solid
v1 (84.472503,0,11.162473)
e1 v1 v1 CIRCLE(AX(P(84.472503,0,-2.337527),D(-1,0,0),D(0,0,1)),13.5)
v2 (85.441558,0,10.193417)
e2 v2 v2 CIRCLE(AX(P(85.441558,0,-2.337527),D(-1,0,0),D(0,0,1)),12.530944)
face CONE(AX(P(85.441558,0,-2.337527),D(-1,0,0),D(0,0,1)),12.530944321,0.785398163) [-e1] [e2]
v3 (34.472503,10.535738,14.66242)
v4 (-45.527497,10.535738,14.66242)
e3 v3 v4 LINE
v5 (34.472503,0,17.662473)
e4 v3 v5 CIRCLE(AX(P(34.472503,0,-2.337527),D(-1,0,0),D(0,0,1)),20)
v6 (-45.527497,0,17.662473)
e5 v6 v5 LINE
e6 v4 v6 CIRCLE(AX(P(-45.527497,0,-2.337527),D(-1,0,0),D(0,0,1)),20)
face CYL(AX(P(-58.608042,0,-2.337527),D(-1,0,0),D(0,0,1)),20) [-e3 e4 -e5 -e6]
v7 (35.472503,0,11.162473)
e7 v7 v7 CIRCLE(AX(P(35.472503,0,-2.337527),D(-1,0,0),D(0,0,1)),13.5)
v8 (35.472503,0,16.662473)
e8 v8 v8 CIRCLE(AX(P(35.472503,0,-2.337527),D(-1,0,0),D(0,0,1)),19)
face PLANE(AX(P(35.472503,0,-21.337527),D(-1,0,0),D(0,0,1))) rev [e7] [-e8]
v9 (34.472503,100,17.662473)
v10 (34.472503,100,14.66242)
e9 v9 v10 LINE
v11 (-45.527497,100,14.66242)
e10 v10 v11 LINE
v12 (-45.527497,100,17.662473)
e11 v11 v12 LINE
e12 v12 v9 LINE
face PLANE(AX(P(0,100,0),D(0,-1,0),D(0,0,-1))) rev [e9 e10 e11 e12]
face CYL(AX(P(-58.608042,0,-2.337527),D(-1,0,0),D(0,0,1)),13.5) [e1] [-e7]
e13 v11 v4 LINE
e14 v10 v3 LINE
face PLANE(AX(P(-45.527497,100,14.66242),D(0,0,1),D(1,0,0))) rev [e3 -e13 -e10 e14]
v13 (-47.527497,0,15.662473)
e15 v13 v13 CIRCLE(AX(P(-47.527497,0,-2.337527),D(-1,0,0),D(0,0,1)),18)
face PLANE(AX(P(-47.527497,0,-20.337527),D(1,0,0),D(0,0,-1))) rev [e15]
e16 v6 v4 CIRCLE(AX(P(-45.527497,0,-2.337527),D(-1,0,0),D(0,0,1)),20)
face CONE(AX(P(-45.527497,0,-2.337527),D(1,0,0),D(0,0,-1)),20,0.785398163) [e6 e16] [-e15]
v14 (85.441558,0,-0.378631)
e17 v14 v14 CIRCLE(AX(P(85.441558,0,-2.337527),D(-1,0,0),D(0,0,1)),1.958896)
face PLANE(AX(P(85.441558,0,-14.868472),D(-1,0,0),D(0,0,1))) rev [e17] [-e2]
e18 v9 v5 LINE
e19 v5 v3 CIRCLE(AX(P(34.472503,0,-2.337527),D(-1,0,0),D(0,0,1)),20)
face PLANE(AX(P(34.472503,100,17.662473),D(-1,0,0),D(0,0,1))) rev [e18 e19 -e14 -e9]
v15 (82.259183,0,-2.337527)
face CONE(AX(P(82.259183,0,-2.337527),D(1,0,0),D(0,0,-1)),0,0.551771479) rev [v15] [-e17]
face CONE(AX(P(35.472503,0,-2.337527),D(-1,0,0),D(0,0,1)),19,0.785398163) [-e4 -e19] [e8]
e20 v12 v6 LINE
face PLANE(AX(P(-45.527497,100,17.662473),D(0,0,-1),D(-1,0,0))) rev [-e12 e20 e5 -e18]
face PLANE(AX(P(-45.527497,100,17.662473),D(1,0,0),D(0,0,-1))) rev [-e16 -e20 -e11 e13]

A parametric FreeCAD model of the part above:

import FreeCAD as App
import Part
import Sketcher

V = App.Vector
Q = App.Units.Quantity

doc = App.newDocument("Part")
body = doc.addObject("PartDesign::Body", "Body")

# Sketch on XZ plane
sketch1 = body.newObject("Sketcher::SketchObject", "Sketch")
sketch1.AttachmentSupport = (doc.getObject("XZ_Plane"), [""])
sketch1.MapMode = "FlatFace"
sketch1.addGeometry([
    Part.LineSegment(V(34.5, -22.3, 0), V(-45.5, -22.3, 0)),  # 0
    Part.LineSegment(V(-45.5, -22.3, 0), V(-47.5, -20.3, 0)),  # 1
    Part.LineSegment(V(-47.5, -20.3, 0), V(-47.5, -2.3, 0)),  # 2
    Part.LineSegment(V(-47.5, -2.3, 0), V(82.3, -2.3, 0)),  # 3
    Part.LineSegment(V(82.3, -2.3, 0), V(85.4, -4.3, 0)),  # 4
    Part.LineSegment(V(85.4, -4.3, 0), V(85.4, -14.9, 0)),  # 5
    Part.LineSegment(V(85.4, -14.9, 0), V(84.5, -15.8, 0)),  # 6
    Part.LineSegment(V(84.5, -15.8, 0), V(35.5, -15.8, 0)),  # 7
    Part.LineSegment(V(35.5, -15.8, 0), V(35.5, -21.3, 0)),  # 8
    Part.LineSegment(V(35.5, -21.3, 0), V(34.5, -22.3, 0)),  # 9
], False)
sketch1.addGeometry(Part.LineSegment(V(-47.5, -2.3, 0), V(85.4, -2.3, 0)), True)  # axis
sketch1.addConstraint([
    Sketcher.Constraint("Coincident", 0, 2, 1, 1),
    Sketcher.Constraint("Coincident", 1, 2, 2, 1),
    Sketcher.Constraint("Coincident", 2, 2, 3, 1),
    Sketcher.Constraint("Coincident", 3, 2, 4, 1),
    Sketcher.Constraint("Coincident", 4, 2, 5, 1),
    Sketcher.Constraint("Coincident", 5, 2, 6, 1),
    Sketcher.Constraint("Coincident", 6, 2, 7, 1),
    Sketcher.Constraint("Coincident", 7, 2, 8, 1),
    Sketcher.Constraint("Coincident", 8, 2, 9, 1),
    Sketcher.Constraint("Coincident", 9, 2, 0, 1),
    Sketcher.Constraint("Horizontal", 0),
    Sketcher.Constraint("Vertical", 2),
    Sketcher.Constraint("Horizontal", 3),
    Sketcher.Constraint("Vertical", 5),
    Sketcher.Constraint("Horizontal", 7),
    Sketcher.Constraint("Vertical", 8),
    Sketcher.Constraint("Horizontal", 10),
    Sketcher.Constraint("Coincident", 10, 1, 2, 2),
    Sketcher.Constraint("Perpendicular", 1, 6),
    Sketcher.Constraint("Parallel", 6, 9),
    Sketcher.Constraint("Vertical", 5, 2, 10, 2),
    Sketcher.Constraint("DistanceX", 0, 2, 0, 1, 80.0),
    Sketcher.Constraint("DistanceX", 7, 2, 7, 1, 49.0),
    Sketcher.Constraint("DistanceY", 2, 1, 2, 2, 18.0),
    Sketcher.Constraint("Angle", 1, Q("135 deg")),
    Sketcher.Constraint("DistanceY", 8, 2, 8, 1, 5.5),
    Sketcher.Constraint("DistanceX", 1, 2, 0, 2, 2.0),
    Sketcher.Constraint("DistanceX", 0, 2, 6, 2, 130.0),
    Sketcher.Constraint("DistanceX", 3, 1, 3, 2, 129.78668),
    Sketcher.Constraint("DistanceY", 5, 2, 5, 1, 10.572048),
    Sketcher.Constraint("Distance", 4, 3.736949),
    Sketcher.Constraint("DistanceX", -1, 1, 4, 2, 85.441558),
    Sketcher.Constraint("DistanceY", 5, 2, -1, 1, 14.868472),
])
revolution = body.newObject("PartDesign::Revolution", "Revolution")
revolution.Profile = sketch1
revolution.ReferenceAxis = (sketch1, ["Axis0"])
revolution.Angle = 360

# Sketch on XZ plane
sketch2 = body.newObject("Sketcher::SketchObject", "Sketch001")
sketch2.AttachmentSupport = (doc.getObject("XZ_Plane"), [""])
sketch2.MapMode = "FlatFace"
sketch2.addGeometry([
    Part.LineSegment(V(-45.5, 14.7, 0), V(-45.5, 17.7, 0)),
    Part.LineSegment(V(-45.5, 17.7, 0), V(34.5, 17.7, 0)),
    Part.LineSegment(V(34.5, 17.7, 0), V(34.5, 14.7, 0)),
    Part.LineSegment(V(34.5, 14.7, 0), V(-45.5, 14.7, 0)),
], False)
sketch2.addConstraint([
    Sketcher.Constraint("Coincident", 0, 2, 1, 1),
    Sketcher.Constraint("Coincident", 1, 2, 2, 1),
    Sketcher.Constraint("Coincident", 2, 2, 3, 1),
    Sketcher.Constraint("Coincident", 3, 2, 0, 1),
    Sketcher.Constraint("Vertical", 0),
    Sketcher.Constraint("Horizontal", 1),
    Sketcher.Constraint("Vertical", 2),
    Sketcher.Constraint("Horizontal", 3),
    Sketcher.Constraint("DistanceX", 1, 1, 1, 2, 80.0),
    Sketcher.Constraint("DistanceY", 0, 1, 0, 2, 3.000052),
    Sketcher.Constraint("DistanceY", -1, 1, 2, 2, 14.66242),
    Sketcher.Constraint("DistanceX", 0, 2, -1, 1, 45.527497),
])
pad1 = body.newObject("PartDesign::Pad", "Pad")
pad1.Profile = sketch2
pad1.Length = 100
pad1.Reversed = True

doc.recompute()
